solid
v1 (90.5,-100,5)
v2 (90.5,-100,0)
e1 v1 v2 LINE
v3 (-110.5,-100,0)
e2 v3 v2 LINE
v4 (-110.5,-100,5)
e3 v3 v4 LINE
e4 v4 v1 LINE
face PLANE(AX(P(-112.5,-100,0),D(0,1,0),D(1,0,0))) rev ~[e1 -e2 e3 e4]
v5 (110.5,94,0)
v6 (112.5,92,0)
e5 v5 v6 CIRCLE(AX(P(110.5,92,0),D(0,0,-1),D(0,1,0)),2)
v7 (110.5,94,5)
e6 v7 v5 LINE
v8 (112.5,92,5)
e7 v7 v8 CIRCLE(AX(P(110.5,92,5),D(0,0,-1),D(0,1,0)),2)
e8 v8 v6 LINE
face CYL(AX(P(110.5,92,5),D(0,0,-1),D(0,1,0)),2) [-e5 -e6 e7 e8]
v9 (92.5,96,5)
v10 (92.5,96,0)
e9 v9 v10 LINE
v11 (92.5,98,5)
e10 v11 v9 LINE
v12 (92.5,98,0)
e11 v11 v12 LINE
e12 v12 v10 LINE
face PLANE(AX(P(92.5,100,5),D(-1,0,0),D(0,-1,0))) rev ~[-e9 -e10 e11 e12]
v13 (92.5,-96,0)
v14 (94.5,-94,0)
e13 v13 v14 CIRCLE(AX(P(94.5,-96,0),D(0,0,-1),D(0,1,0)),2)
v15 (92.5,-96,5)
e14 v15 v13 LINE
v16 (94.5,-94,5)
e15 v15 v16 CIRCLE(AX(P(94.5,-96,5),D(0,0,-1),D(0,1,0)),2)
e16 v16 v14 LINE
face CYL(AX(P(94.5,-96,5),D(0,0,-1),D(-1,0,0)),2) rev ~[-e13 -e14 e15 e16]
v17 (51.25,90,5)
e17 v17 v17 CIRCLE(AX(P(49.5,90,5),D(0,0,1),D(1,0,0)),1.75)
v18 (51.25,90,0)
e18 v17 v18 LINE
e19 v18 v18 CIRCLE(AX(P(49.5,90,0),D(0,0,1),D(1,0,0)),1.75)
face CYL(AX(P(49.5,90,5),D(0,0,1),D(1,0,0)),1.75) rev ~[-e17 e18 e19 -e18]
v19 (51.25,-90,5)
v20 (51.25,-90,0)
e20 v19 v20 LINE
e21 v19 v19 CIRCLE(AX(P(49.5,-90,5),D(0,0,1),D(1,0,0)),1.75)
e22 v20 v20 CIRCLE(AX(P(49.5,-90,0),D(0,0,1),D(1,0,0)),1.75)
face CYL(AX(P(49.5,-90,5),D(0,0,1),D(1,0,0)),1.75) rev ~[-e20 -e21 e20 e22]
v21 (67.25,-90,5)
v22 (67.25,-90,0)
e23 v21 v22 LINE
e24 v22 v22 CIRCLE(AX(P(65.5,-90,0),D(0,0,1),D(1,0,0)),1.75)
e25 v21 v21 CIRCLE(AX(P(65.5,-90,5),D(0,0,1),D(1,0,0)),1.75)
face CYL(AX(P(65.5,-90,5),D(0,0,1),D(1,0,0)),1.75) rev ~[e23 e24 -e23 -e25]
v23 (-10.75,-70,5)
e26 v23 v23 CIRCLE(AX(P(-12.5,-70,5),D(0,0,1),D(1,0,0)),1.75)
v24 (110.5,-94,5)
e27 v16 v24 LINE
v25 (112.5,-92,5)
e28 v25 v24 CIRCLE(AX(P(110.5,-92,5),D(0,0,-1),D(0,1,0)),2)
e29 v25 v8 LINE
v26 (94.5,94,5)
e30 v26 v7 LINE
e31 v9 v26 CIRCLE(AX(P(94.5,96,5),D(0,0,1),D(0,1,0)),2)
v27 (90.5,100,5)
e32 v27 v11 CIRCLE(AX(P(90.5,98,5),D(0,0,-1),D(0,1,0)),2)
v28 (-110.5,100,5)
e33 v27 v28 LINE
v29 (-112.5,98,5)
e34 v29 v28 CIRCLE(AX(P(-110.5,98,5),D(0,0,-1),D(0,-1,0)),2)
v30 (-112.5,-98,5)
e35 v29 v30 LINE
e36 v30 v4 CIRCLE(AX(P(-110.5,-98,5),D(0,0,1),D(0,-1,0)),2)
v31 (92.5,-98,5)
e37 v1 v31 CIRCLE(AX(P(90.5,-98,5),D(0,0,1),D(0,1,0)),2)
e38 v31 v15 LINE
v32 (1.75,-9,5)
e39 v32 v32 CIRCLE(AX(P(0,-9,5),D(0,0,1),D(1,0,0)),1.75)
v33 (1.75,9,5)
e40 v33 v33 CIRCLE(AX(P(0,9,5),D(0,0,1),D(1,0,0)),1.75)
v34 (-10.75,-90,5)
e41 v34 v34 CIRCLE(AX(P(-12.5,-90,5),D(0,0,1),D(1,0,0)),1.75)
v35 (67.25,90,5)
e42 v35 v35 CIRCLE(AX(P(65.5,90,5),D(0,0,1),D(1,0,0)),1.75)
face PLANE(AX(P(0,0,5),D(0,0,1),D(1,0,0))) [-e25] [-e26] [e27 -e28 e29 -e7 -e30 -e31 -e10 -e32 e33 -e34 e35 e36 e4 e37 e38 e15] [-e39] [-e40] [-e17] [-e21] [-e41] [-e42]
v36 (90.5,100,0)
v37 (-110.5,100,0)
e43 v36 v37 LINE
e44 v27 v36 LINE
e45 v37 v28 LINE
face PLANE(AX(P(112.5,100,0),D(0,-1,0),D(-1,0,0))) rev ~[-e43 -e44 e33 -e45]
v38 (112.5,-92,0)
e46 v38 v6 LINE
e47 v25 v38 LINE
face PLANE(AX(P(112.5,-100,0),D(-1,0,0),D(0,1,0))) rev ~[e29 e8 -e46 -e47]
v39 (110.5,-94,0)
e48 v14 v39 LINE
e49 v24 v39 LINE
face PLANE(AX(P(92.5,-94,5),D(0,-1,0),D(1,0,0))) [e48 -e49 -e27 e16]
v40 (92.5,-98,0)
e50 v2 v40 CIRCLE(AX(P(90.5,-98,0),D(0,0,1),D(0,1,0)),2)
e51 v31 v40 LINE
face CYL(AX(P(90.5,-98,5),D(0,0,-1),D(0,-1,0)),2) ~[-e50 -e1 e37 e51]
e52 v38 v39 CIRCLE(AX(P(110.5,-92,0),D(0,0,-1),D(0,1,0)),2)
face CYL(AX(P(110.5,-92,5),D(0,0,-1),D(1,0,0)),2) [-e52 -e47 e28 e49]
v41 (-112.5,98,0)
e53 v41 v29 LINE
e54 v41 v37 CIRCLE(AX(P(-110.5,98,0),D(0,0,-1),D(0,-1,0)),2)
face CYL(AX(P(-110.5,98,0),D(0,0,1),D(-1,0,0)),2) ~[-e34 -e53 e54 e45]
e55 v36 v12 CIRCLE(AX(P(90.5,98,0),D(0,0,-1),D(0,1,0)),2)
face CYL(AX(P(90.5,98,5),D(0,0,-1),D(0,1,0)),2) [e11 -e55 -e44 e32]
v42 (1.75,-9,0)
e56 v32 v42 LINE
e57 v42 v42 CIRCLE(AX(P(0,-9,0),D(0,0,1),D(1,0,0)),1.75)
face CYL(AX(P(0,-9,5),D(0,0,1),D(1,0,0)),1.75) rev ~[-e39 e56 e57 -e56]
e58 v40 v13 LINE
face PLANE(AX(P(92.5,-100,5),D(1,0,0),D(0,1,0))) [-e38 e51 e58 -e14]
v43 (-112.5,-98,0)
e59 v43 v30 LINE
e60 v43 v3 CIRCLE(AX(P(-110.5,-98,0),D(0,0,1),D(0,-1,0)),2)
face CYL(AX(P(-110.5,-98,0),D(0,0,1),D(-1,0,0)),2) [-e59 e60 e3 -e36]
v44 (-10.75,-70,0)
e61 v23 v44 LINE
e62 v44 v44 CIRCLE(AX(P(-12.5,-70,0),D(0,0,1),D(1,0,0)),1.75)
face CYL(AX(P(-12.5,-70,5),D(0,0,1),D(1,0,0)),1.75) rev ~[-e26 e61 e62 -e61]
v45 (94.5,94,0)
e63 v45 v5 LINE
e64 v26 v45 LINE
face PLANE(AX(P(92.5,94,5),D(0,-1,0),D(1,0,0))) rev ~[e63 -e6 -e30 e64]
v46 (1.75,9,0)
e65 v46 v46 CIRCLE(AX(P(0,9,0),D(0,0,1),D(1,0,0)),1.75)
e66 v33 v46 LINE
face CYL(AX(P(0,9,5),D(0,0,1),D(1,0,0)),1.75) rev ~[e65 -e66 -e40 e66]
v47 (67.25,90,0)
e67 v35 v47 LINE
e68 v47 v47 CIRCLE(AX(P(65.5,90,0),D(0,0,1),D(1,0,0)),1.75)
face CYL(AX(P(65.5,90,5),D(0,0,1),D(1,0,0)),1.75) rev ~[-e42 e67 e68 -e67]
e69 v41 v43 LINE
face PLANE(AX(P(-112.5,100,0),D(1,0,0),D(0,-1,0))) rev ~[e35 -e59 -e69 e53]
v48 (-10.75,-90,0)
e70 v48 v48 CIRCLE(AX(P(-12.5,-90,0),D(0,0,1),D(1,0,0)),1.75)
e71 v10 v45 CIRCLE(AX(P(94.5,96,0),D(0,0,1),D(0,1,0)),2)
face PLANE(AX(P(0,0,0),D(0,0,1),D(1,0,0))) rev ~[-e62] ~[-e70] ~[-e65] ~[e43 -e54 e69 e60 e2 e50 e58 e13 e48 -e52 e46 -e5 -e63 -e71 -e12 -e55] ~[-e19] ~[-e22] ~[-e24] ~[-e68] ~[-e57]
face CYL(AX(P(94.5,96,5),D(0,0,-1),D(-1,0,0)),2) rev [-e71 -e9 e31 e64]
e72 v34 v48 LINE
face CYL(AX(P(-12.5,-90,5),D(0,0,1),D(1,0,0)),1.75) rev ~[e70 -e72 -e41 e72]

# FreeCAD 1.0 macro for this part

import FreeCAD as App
import Part
import Sketcher

V = App.Vector


def edges_at(feature, points):
    """Names of the edges that pass closest to the given points."""
    edges = feature.Shape.Edges
    near = lambda p: min(range(len(edges)), key=lambda i: edges[i].distToShape(Part.Vertex(*p))[0])
    return sorted({f"Edge{near(p) + 1}" for p in points})

doc = App.newDocument("Part")
body = doc.addObject("PartDesign::Body", "Body")

sketch1 = body.newObject("Sketcher::SketchObject", "Sketch")
sketch1.AttachmentSupport = (doc.getObject("XY_Plane"), [""])
sketch1.MapMode = "FlatFace"
sketch1.addGeometry(Part.LineSegment(V(-112.5, 100, 0), V(-112.5, -100, 0)), False)
sketch1.addGeometry(Part.LineSegment(V(-112.5, -100, 0), V(112.5, -100, 0)), False)
sketch1.addGeometry(Part.LineSegment(V(112.5, -100, 0), V(112.5, 100, 0)), False)
sketch1.addGeometry(Part.LineSegment(V(112.5, 100, 0), V(-112.5, 100, 0)), False)
sketch1.addConstraint(Sketcher.Constraint("Coincident", 0, 2, 1, 1))
sketch1.addConstraint(Sketcher.Constraint("Coincident", 1, 2, 2, 1))
sketch1.addConstraint(Sketcher.Constraint("Coincident", 2, 2, 3, 1))
sketch1.addConstraint(Sketcher.Constraint("Coincident", 3, 2, 0, 1))
sketch1.addConstraint(Sketcher.Constraint("Vertical", 0))
sketch1.addConstraint(Sketcher.Constraint("Horizontal", 1))
sketch1.addConstraint(Sketcher.Constraint("Vertical", 2))
sketch1.addConstraint(Sketcher.Constraint("Horizontal", 3))
sketch1.addConstraint(Sketcher.Constraint("Symmetric", 0, 2, 2, 2, -1, 1))
sketch1.addConstraint(Sketcher.Constraint("DistanceX", 1, 1, 1, 2, 225.0))
sketch1.addConstraint(Sketcher.Constraint("DistanceY", 0, 2, 0, 1, 200.0))
pad1 = body.newObject("PartDesign::Pad", "Pad")
pad1.Profile = sketch1
pad1.Length = 5

sketch2 = body.newObject("Sketcher::SketchObject", "Sketch001")
sketch2.AttachmentSupport = (doc.getObject("XY_Plane"), [""])
sketch2.MapMode = "FlatFace"
sketch2.AttachmentOffset = App.Placement(V(0, 0, 5), App.Rotation())
sketch2.addGeometry(Part.Circle(V(65.5, -90, 0), V(0, 0, 1), 1.75), False)
sketch2.addGeometry(Part.Circle(V(49.5, -90, 0), V(0, 0, 1), 1.75), False)
sketch2.addGeometry(Part.Circle(V(65.5, 90, 0), V(0, 0, 1), 1.75), False)
sketch2.addGeometry(Part.Circle(V(49.5, 90, 0), V(0, 0, 1), 1.75), False)
sketch2.addConstraint(Sketcher.Constraint("Equal", 0, 1))
sketch2.addConstraint(Sketcher.Constraint("Equal", 1, 2))
sketch2.addConstraint(Sketcher.Constraint("Equal", 2, 3))
sketch2.addConstraint(Sketcher.Constraint("Symmetric", 0, 3, 2, 3, -1))
sketch2.addConstraint(Sketcher.Constraint("Symmetric", 1, 3, 3, 3, -1))
sketch2.addConstraint(Sketcher.Constraint("Horizontal", 0, 3, 1, 3))
sketch2.addConstraint(Sketcher.Constraint("Diameter", 0, 3.5))
sketch2.addConstraint(Sketcher.Constraint("DistanceX", 1, 3, 0, 3, 16.0))
sketch2.addConstraint(Sketcher.Constraint("DistanceY", 0, 3, -1, 1, 90.0))
sketch2.addConstraint(Sketcher.Constraint("DistanceX", -1, 1, 0, 3, 65.5))
pocket1 = body.newObject("PartDesign::Pocket", "Pocket")
pocket1.Profile = sketch2
pocket1.Type = "ThroughAll"

sketch3 = body.newObject("Sketcher::SketchObject", "Sketch002")
sketch3.AttachmentSupport = (doc.getObject("XY_Plane"), [""])
sketch3.MapMode = "FlatFace"
sketch3.AttachmentOffset = App.Placement(V(0, 0, 5), App.Rotation())
sketch3.addGeometry(Part.Circle(V(-12.5, -90, 0), V(0, 0, 1), 1.75), False)
sketch3.addGeometry(Part.Circle(V(-12.5, -70, 0), V(0, 0, 1), 1.75), False)
sketch3.addConstraint(Sketcher.Constraint("Equal", 0, 1))
sketch3.addConstraint(Sketcher.Constraint("Vertical", 0, 3, 1, 3))
sketch3.addConstraint(Sketcher.Constraint("Diameter", 0, 3.5))
sketch3.addConstraint(Sketcher.Constraint("DistanceY", 0, 3, 1, 3, 20.0))
sketch3.addConstraint(Sketcher.Constraint("DistanceY", 0, 3, -1, 1, 90.0))
sketch3.addConstraint(Sketcher.Constraint("DistanceX", 0, 3, -1, 1, 12.5))
pocket2 = body.newObject("PartDesign::Pocket", "Pocket001")
pocket2.Profile = sketch3
pocket2.Type = "ThroughAll"

sketch4 = body.newObject("Sketcher::SketchObject", "Sketch003")
sketch4.AttachmentSupport = (doc.getObject("XY_Plane"), [""])
sketch4.MapMode = "FlatFace"
sketch4.AttachmentOffset = App.Placement(V(0, 0, 5), App.Rotation())
sketch4.addGeometry(Part.Circle(V(0, -9, 0), V(0, 0, 1), 1.75), False)
sketch4.addGeometry(Part.Circle(V(0, 9, 0), V(0, 0, 1), 1.75), False)
sketch4.addConstraint(Sketcher.Constraint("Equal", 0, 1))
sketch4.addConstraint(Sketcher.Constraint("Symmetric", 0, 3, 1, 3, -1, 1))
sketch4.addConstraint(Sketcher.Constraint("PointOnObject", 0, 3, -2))
sketch4.addConstraint(Sketcher.Constraint("Diameter", 0, 3.5))
sketch4.addConstraint(Sketcher.Constraint("DistanceY", 0, 3, -1, 1, 9.0))
pocket3 = body.newObject("PartDesign::Pocket", "Pocket002")
pocket3.Profile = sketch4
pocket3.Type = "ThroughAll"

sketch5 = body.newObject("Sketcher::SketchObject", "Sketch004")
sketch5.AttachmentSupport = (doc.getObject("XY_Plane"), [""])
sketch5.MapMode = "FlatFace"
sketch5.AttachmentOffset = App.Placement(V(0, 0, 5), App.Rotation())
sketch5.addGeometry(Part.LineSegment(V(92.5, -100, 0), V(112.5, -100, 0)), False)
sketch5.addGeometry(Part.LineSegment(V(112.5, -100, 0), V(112.5, -94, 0)), False)
sketch5.addGeometry(Part.LineSegment(V(112.5, -94, 0), V(92.5, -94, 0)), False)
sketch5.addGeometry(Part.LineSegment(V(92.5, -94, 0), V(92.5, -100, 0)), False)
sketch5.addGeometry(Part.LineSegment(V(112.5, 94, 0), V(112.5, 100, 0)), False)
sketch5.addGeometry(Part.LineSegment(V(112.5, 100, 0), V(92.5, 100, 0)), False)
sketch5.addGeometry(Part.LineSegment(V(92.5, 100, 0), V(92.5, 94, 0)), False)
sketch5.addGeometry(Part.LineSegment(V(92.5, 94, 0), V(112.5, 94, 0)), False)
sketch5.addConstraint(Sketcher.Constraint("Coincident", 0, 2, 1, 1))
sketch5.addConstraint(Sketcher.Constraint("Coincident", 1, 2, 2, 1))
sketch5.addConstraint(Sketcher.Constraint("Coincident", 2, 2, 3, 1))
sketch5.addConstraint(Sketcher.Constraint("Coincident", 3, 2, 0, 1))
sketch5.addConstraint(Sketcher.Constraint("Coincident", 4, 2, 5, 1))
sketch5.addConstraint(Sketcher.Constraint("Coincident", 5, 2, 6, 1))
sketch5.addConstraint(Sketcher.Constraint("Coincident", 6, 2, 7, 1))
sketch5.addConstraint(Sketcher.Constraint("Coincident", 7, 2, 4, 1))
sketch5.addConstraint(Sketcher.Constraint("Horizontal", 0))
sketch5.addConstraint(Sketcher.Constraint("Vertical", 1))
sketch5.addConstraint(Sketcher.Constraint("Horizontal", 2))
sketch5.addConstraint(Sketcher.Constraint("Vertical", 3))
sketch5.addConstraint(Sketcher.Constraint("Vertical", 4))
sketch5.addConstraint(Sketcher.Constraint("Horizontal", 5))
sketch5.addConstraint(Sketcher.Constraint("Vertical", 6))
sketch5.addConstraint(Sketcher.Constraint("Horizontal", 7))
sketch5.addConstraint(Sketcher.Constraint("Symmetric", 0, 2, 4, 2, -1))
sketch5.addConstraint(Sketcher.Constraint("Symmetric", 2, 2, 6, 2, -1))
sketch5.addConstraint(Sketcher.Constraint("DistanceX", 0, 1, 0, 2, 20.0))
sketch5.addConstraint(Sketcher.Constraint("DistanceY", 1, 1, 1, 2, 6.0))
sketch5.addConstraint(Sketcher.Constraint("DistanceY", 0, 2, -1, 1, 100.0))
sketch5.addConstraint(Sketcher.Constraint("DistanceX", -1, 1, 0, 2, 112.5))
pocket4 = body.newObject("PartDesign::Pocket", "Pocket003")
pocket4.Profile = sketch5
pocket4.Type = "ThroughAll"
doc.recompute()

fillet = body.newObject("PartDesign::Fillet", "Fillet")
fillet.Base = (pocket4, edges_at(pocket4, [
    (112.5, -94, 2.5),
    (92.5, -94, 2.5),
    (92.5, -100, 2.5),
    (112.5, 94, 2.5),
    (92.5, 94, 2.5),
    (92.5, 100, 2.5),
    (-112.5, 100, 2.5),
    (-112.5, -100, 2.5),
]))
fillet.Radius = 2

doc.recompute()
